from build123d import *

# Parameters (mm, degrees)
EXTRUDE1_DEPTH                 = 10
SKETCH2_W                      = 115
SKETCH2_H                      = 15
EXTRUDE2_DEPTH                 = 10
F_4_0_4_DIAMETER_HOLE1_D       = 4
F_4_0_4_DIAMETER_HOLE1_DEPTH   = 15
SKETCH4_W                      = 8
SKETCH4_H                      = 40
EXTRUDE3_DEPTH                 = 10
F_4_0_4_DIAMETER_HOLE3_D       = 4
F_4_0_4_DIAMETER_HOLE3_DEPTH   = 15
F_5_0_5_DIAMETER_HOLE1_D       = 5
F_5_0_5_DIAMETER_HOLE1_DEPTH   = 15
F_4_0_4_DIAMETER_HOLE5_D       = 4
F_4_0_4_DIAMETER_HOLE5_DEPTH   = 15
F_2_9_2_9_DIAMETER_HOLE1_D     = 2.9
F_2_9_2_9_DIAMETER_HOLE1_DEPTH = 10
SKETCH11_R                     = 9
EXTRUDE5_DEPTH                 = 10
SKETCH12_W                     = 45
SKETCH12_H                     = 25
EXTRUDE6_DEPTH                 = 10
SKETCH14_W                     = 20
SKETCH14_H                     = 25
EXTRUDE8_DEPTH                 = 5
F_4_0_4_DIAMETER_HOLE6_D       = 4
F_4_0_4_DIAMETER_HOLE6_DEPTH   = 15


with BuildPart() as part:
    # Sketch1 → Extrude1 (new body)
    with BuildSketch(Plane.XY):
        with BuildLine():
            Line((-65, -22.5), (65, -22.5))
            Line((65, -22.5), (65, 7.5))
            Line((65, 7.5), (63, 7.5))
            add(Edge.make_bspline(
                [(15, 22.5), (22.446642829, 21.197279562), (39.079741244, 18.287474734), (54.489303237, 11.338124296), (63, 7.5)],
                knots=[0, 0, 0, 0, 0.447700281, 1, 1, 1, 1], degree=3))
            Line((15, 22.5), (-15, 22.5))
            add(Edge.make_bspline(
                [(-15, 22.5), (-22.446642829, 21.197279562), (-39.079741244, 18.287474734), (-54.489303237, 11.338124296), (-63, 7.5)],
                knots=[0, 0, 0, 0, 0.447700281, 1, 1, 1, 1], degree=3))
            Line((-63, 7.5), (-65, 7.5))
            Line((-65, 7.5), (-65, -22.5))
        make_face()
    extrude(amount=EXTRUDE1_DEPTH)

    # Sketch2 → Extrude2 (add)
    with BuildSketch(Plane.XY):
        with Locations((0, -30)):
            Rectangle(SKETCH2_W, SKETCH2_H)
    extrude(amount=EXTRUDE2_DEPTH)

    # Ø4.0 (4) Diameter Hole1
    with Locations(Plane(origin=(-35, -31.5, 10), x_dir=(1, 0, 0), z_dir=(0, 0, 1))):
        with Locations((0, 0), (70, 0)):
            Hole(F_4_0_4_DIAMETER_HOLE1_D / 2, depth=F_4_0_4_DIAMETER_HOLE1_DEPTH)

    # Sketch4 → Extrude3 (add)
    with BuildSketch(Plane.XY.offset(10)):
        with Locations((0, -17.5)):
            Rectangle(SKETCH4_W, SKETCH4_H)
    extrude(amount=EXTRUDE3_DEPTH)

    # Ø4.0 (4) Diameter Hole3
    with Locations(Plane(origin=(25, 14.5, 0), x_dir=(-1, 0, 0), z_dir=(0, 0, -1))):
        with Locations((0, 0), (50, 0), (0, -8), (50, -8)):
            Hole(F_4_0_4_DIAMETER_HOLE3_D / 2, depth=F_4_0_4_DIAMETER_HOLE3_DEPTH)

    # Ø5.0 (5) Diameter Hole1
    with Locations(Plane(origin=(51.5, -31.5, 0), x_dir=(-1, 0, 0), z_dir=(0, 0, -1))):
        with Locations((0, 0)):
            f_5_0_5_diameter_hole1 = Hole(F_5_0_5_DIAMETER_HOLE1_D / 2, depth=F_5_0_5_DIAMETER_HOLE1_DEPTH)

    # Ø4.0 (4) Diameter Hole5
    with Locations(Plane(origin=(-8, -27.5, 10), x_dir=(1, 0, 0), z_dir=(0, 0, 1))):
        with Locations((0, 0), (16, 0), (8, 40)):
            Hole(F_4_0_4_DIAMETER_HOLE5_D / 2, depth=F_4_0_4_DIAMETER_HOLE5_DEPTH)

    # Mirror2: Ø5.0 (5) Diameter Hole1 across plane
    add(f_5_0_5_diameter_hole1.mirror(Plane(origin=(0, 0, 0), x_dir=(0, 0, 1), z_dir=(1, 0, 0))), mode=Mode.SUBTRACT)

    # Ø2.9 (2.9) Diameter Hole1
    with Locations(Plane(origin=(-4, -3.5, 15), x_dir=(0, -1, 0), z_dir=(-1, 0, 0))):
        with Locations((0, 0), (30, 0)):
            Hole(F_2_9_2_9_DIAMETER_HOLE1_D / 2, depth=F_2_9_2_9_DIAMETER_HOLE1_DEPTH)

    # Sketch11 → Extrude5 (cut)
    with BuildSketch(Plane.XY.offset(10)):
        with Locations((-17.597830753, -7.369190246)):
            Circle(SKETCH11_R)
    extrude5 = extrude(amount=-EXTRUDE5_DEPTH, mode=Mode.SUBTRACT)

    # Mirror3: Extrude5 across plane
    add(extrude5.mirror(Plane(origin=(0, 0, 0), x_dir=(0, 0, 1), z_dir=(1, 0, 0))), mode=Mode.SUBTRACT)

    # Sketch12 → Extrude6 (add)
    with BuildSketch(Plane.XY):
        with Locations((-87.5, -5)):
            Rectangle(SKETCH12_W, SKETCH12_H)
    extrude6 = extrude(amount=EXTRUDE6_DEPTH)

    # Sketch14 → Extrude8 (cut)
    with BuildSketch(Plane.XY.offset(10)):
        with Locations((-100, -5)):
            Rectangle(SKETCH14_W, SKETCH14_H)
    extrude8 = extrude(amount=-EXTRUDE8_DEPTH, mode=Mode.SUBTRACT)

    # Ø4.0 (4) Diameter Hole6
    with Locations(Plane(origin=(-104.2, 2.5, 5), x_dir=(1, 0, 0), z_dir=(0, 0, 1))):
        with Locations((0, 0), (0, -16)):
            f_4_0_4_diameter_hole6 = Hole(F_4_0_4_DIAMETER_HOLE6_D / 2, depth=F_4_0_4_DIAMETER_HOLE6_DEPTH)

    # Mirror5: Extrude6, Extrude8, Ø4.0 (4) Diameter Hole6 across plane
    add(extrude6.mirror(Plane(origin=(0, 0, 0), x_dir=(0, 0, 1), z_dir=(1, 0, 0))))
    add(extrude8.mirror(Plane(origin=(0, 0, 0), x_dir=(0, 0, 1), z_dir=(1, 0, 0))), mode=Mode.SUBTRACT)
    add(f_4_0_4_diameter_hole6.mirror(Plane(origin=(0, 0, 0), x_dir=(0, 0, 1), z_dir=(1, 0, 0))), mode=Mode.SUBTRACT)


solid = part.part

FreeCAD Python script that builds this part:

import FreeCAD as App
import Part
import Sketcher

V = App.Vector
Q = App.Units.Quantity


def add_polygon(sketch, points):
    """Adds a closed chain of lines whose ends are joined by coincident constraints."""
    first, n = sketch.GeometryCount, len(points)
    for a, b in zip(points, points[1:] + points[:1]):
        sketch.addGeometry(Part.LineSegment(App.Vector(*a, 0), App.Vector(*b, 0)), False)
    for i in range(n):
        sketch.addConstraint(Sketcher.Constraint("Coincident", first + i, 2, first + (i + 1) % n, 1))

doc = App.newDocument("Part")
body = doc.addObject("PartDesign::Body", "Body")

# Sketch on XY plane
sketch1 = body.newObject("Sketcher::SketchObject", "Sketch")
sketch1.AttachmentSupport = (doc.getObject("XY_Plane"), [""])
sketch1.MapMode = "FlatFace"
sketch1.addGeometry([
    Part.LineSegment(V(-65, -22.5, 0), V(65, -22.5, 0)),  # 0
    Part.LineSegment(V(65, -22.5, 0), V(65, 7.5, 0)),  # 1
    Part.LineSegment(V(65, 7.5, 0), V(63, 7.5, 0)),  # 2
    Part.BSplineCurve([V(15, 22.5, 0), V(22.446643, 21.19728, 0), V(39.079741, 18.287475, 0), V(54.489303, 11.338124, 0), V(63, 7.5, 0)], [4, 1, 4], [0, 0.447700281, 1], False, 3, [1, 1, 1, 1, 1], False),  # 3
    Part.LineSegment(V(15, 22.5, 0), V(-15, 22.5, 0)),  # 4
    Part.BSplineCurve([V(-15, 22.5, 0), V(-22.446643, 21.19728, 0), V(-39.079741, 18.287475, 0), V(-54.489303, 11.338124, 0), V(-63, 7.5, 0)], [4, 1, 4], [0, 0.447700281, 1], False, 3, [1, 1, 1, 1, 1], False),  # 5
    Part.LineSegment(V(-63, 7.5, 0), V(-65, 7.5, 0)),  # 6
    Part.LineSegment(V(-65, 7.5, 0), V(-65, -22.5, 0)),  # 7
], False)
sketch1.addConstraint([
    Sketcher.Constraint("Block", 3),
    Sketcher.Constraint("Block", 5),
    Sketcher.Constraint("Coincident", 0, 2, 1, 1),
    Sketcher.Constraint("Coincident", 1, 2, 2, 1),
    Sketcher.Constraint("Coincident", 2, 2, 3, 2),
    Sketcher.Constraint("Coincident", 3, 1, 4, 1),
    Sketcher.Constraint("Coincident", 4, 2, 5, 1),
    Sketcher.Constraint("Coincident", 5, 2, 6, 1),
    Sketcher.Constraint("Coincident", 6, 2, 7, 1),
    Sketcher.Constraint("Coincident", 7, 2, 0, 1),
    Sketcher.Constraint("Horizontal", 0),
    Sketcher.Constraint("Vertical", 1),
    Sketcher.Constraint("Horizontal", 2),
    Sketcher.Constraint("Horizontal", 6),
    Sketcher.Constraint("Vertical", 7),
    Sketcher.Constraint("Equal", 2, 6),
    Sketcher.Constraint("Equal", 4, 1),
    Sketcher.Constraint("DistanceX", 0, 1, 0, 2, Q("130 mm")),
])
pad1 = body.newObject("PartDesign::Pad", "Pad")
pad1.Profile = sketch1
pad1.Length = 10

# Sketch on XY plane
sketch2 = body.newObject("Sketcher::SketchObject", "Sketch001")
sketch2.AttachmentSupport = (doc.getObject("XY_Plane"), [""])
sketch2.MapMode = "FlatFace"
add_polygon(sketch2, [(-57.5, -22.5), (-57.5, -37.5), (57.5, -37.5), (57.5, -22.5)])  # lines 0-3
sketch2.addConstraint([
    Sketcher.Constraint("Vertical", 0),
    Sketcher.Constraint("Horizontal", 1),
    Sketcher.Constraint("Vertical", 2),
    Sketcher.Constraint("Horizontal", 3),
    Sketcher.Constraint("DistanceX", 1, 1, 1, 2, Q("115 mm")),
    Sketcher.Constraint("DistanceY", 0, 2, 0, 1, Q("15 mm")),
    Sketcher.Constraint("DistanceX", 0, 2, -1, 1, Q("57.5 mm")),
    Sketcher.Constraint("DistanceY", 0, 2, -1, 1, Q("37.5 mm")),
])
pad2 = body.newObject("PartDesign::Pad", "Pad001")
pad2.Profile = sketch2
pad2.Length = 10

# Sketch on XY plane
sketch3 = body.newObject("Sketcher::SketchObject", "Sketch002")
sketch3.AttachmentSupport = (doc.getObject("XY_Plane"), [""])
sketch3.MapMode = "FlatFace"
sketch3.AttachmentOffset = App.Placement(V(0, 0, 10), App.Rotation())
sketch3.addGeometry([
    Part.Circle(V(-35, -31.5, 0), V(0, 0, 1), 2),
    Part.Circle(V(35, -31.5, 0), V(0, 0, 1), 2),
], False)
sketch3.addConstraint([
    Sketcher.Constraint("Equal", 0, 1),
    Sketcher.Constraint("Symmetric", 0, 3, 1, 3, -2),
    Sketcher.Constraint("Diameter", 0, Q("4 mm")),
    Sketcher.Constraint("DistanceX", 0, 3, -1, 1, Q("35 mm")),
    Sketcher.Constraint("DistanceY", 0, 3, -1, 1, Q("31.5 mm")),
])
doc.recompute()
hole = body.newObject("PartDesign::Hole", "Hole")
hole.Profile = sketch3
hole.ThreadType = "None"
hole.Diameter = 4
hole.DepthType = "Dimension"
hole.Depth = 15
hole.DrillPoint = "Flat"

# Sketch on XY plane
sketch4 = body.newObject("Sketcher::SketchObject", "Sketch003")
sketch4.AttachmentSupport = (doc.getObject("XY_Plane"), [""])
sketch4.MapMode = "FlatFace"
sketch4.AttachmentOffset = App.Placement(V(0, 0, 10), App.Rotation())
add_polygon(sketch4, [(-4, 2.5), (-4, -37.5), (4, -37.5), (4, 2.5)])  # lines 0-3
sketch4.addConstraint([
    Sketcher.Constraint("Vertical", 0),
    Sketcher.Constraint("Horizontal", 1),
    Sketcher.Constraint("Vertical", 2),
    Sketcher.Constraint("Horizontal", 3),
    Sketcher.Constraint("DistanceX", 1, 1, 1, 2, Q("8 mm")),
    Sketcher.Constraint("DistanceY", 0, 2, 0, 1, Q("40 mm")),
    Sketcher.Constraint("DistanceX", 0, 2, -1, 1, Q("4 mm")),
    Sketcher.Constraint("DistanceY", 0, 2, -1, 1, Q("37.5 mm")),
])
pad3 = body.newObject("PartDesign::Pad", "Pad002")
pad3.Profile = sketch4
pad3.Length = 10

# Sketch on XY plane
sketch5 = body.newObject("Sketcher::SketchObject", "Sketch004")
sketch5.AttachmentSupport = (doc.getObject("XY_Plane"), [""])
sketch5.MapMode = "FlatFace"
sketch5.addGeometry([
    Part.Circle(V(25, 14.5, 0), V(0, 0, 1), 2),
    Part.Circle(V(-25, 14.5, 0), V(0, 0, 1), 2),
    Part.Circle(V(25, 6.5, 0), V(0, 0, 1), 2),
    Part.Circle(V(-25, 6.5, 0), V(0, 0, 1), 2),
], False)
sketch5.addConstraint([
    Sketcher.Constraint("Equal", 0, 1),
    Sketcher.Constraint("Equal", 1, 2),
    Sketcher.Constraint("Equal", 2, 3),
    Sketcher.Constraint("Symmetric", 0, 3, 1, 3, -2),
    Sketcher.Constraint("Symmetric", 2, 3, 3, 3, -2),
    Sketcher.Constraint("Vertical", 0, 3, 2, 3),
    Sketcher.Constraint("Diameter", 0, Q("4 mm")),
    Sketcher.Constraint("DistanceX", -1, 1, 0, 3, Q("25 mm")),
    Sketcher.Constraint("DistanceY", 2, 3, 0, 3, Q("8 mm")),
    Sketcher.Constraint("DistanceY", -1, 1, 0, 3, Q("14.5 mm")),
])
doc.recompute()
hole2 = body.newObject("PartDesign::Hole", "Hole001")
hole2.Profile = sketch5
hole2.ThreadType = "None"
hole2.Diameter = 4
hole2.DepthType = "Dimension"
hole2.Depth = 15
hole2.DrillPoint = "Flat"
hole2.Reversed = True

# Sketch on XY plane
sketch6 = body.newObject("Sketcher::SketchObject", "Sketch005")
sketch6.AttachmentSupport = (doc.getObject("XY_Plane"), [""])
sketch6.MapMode = "FlatFace"
sketch6.addGeometry(Part.Circle(V(51.5, -31.5, 0), V(0, 0, 1), 2.5), False)
sketch6.addConstraint([
    Sketcher.Constraint("Diameter", 0, Q("5 mm")),
    Sketcher.Constraint("DistanceX", -1, 1, 0, 3, Q("51.5 mm")),
    Sketcher.Constraint("DistanceY", 0, 3, -1, 1, Q("31.5 mm")),
])
doc.recompute()
hole3 = body.newObject("PartDesign::Hole", "Hole002")
hole3.Profile = sketch6
hole3.ThreadType = "None"
hole3.Diameter = 5
hole3.DepthType = "Dimension"
hole3.Depth = 15
hole3.DrillPoint = "Flat"
hole3.Reversed = True

# Sketch on XY plane
sketch7 = body.newObject("Sketcher::SketchObject", "Sketch006")
sketch7.AttachmentSupport = (doc.getObject("XY_Plane"), [""])
sketch7.MapMode = "FlatFace"
sketch7.AttachmentOffset = App.Placement(V(0, 0, 10), App.Rotation())
sketch7.addGeometry([
    Part.Circle(V(-8, -27.5, 0), V(0, 0, 1), 2),
    Part.Circle(V(8, -27.5, 0), V(0, 0, 1), 2),
    Part.Circle(V(0, 12.5, 0), V(0, 0, 1), 2),
], False)
sketch7.addConstraint([
    Sketcher.Constraint("Equal", 0, 1),
    Sketcher.Constraint("Equal", 1, 2),
    Sketcher.Constraint("Symmetric", 0, 3, 1, 3, -2),
    Sketcher.Constraint("PointOnObject", 2, 3, -2),
    Sketcher.Constraint("Diameter", 0, Q("4 mm")),
    Sketcher.Constraint("DistanceX", 0, 3, -1, 1, Q("8 mm")),
    Sketcher.Constraint("DistanceY", 0, 3, 2, 3, Q("40 mm")),
    Sketcher.Constraint("DistanceY", 0, 3, -1, 1, Q("27.5 mm")),
])
doc.recompute()
hole4 = body.newObject("PartDesign::Hole", "Hole003")
hole4.Profile = sketch7
hole4.ThreadType = "None"
hole4.Diameter = 4
hole4.DepthType = "Dimension"
hole4.Depth = 15
hole4.DrillPoint = "Flat"
doc.recompute()

mirrored = body.newObject("PartDesign::Mirrored", "Mirrored")
mirrored.Originals = [hole3]
mirrored.MirrorPlane = (doc.getObject("YZ_Plane"), [""])
body.Tip = mirrored

# Sketch on YZ plane
sketch8 = body.newObject("Sketcher::SketchObject", "Sketch007")
sketch8.AttachmentSupport = (doc.getObject("YZ_Plane"), [""])
sketch8.MapMode = "FlatFace"
sketch8.AttachmentOffset = App.Placement(V(0, 0, -4), App.Rotation())
sketch8.addGeometry([
    Part.Circle(V(-3.5, 15, 0), V(0, 0, 1), 1.45),
    Part.Circle(V(-33.5, 15, 0), V(0, 0, 1), 1.45),
], False)
sketch8.addConstraint([
    Sketcher.Constraint("Equal", 0, 1),
    Sketcher.Constraint("Horizontal", 0, 3, 1, 3),
    Sketcher.Constraint("Diameter", 0, Q("2.9 mm")),
    Sketcher.Constraint("DistanceY", -1, 1, 0, 3, Q("15 mm")),
    Sketcher.Constraint("DistanceX", 1, 3, 0, 3, Q("30 mm")),
    Sketcher.Constraint("DistanceX", 0, 3, -1, 1, Q("3.5 mm")),
])
doc.recompute()
hole5 = body.newObject("PartDesign::Hole", "Hole004")
hole5.Profile = sketch8
hole5.ThreadType = "None"
hole5.Diameter = 2.9
hole5.DepthType = "Dimension"
hole5.Depth = 10
hole5.DrillPoint = "Flat"
hole5.Reversed = True

# Sketch on XY plane
sketch9 = body.newObject("Sketcher::SketchObject", "Sketch008")
sketch9.AttachmentSupport = (doc.getObject("XY_Plane"), [""])
sketch9.MapMode = "FlatFace"
sketch9.AttachmentOffset = App.Placement(V(0, 0, 10), App.Rotation())
sketch9.addGeometry(Part.Circle(V(-17.597831, -7.36919, 0), V(0, 0, 1), 9), False)
sketch9.addConstraint([
    Sketcher.Constraint("Diameter", 0, Q("18 mm")),
    Sketcher.Constraint("DistanceX", 0, 3, -1, 1, Q("17.597831 mm")),
    Sketcher.Constraint("DistanceY", 0, 3, -1, 1, Q("7.36919 mm")),
])
pocket1 = body.newObject("PartDesign::Pocket", "Pocket")
pocket1.Profile = sketch9
pocket1.Length = 10
doc.recompute()

mirrored2 = body.newObject("PartDesign::Mirrored", "Mirrored001")
mirrored2.Originals = [pocket1]
mirrored2.MirrorPlane = (doc.getObject("YZ_Plane"), [""])
body.Tip = mirrored2

# Sketch on XY plane
sketch10 = body.newObject("Sketcher::SketchObject", "Sketch009")
sketch10.AttachmentSupport = (doc.getObject("XY_Plane"), [""])
sketch10.MapMode = "FlatFace"
add_polygon(sketch10, [(-110, 7.5), (-110, -17.5), (-65, -17.5), (-65, 7.5)])  # lines 0-3
sketch10.addConstraint([
    Sketcher.Constraint("Vertical", 0),
    Sketcher.Constraint("Horizontal", 1),
    Sketcher.Constraint("Vertical", 2),
    Sketcher.Constraint("Horizontal", 3),
    Sketcher.Constraint("DistanceX", 1, 1, 1, 2, Q("45 mm")),
    Sketcher.Constraint("DistanceY", 0, 2, 0, 1, Q("25 mm")),
    Sketcher.Constraint("DistanceX", 0, 2, -1, 1, Q("110 mm")),
    Sketcher.Constraint("DistanceY", 0, 2, -1, 1, Q("17.5 mm")),
])
pad4 = body.newObject("PartDesign::Pad", "Pad003")
pad4.Profile = sketch10
pad4.Length = 10

# Sketch on XY plane
sketch11 = body.newObject("Sketcher::SketchObject", "Sketch010")
sketch11.AttachmentSupport = (doc.getObject("XY_Plane"), [""])
sketch11.MapMode = "FlatFace"
sketch11.AttachmentOffset = App.Placement(V(0, 0, 10), App.Rotation())
add_polygon(sketch11, [(-110, 7.5), (-110, -17.5), (-90, -17.5), (-90, 7.5)])  # lines 0-3
sketch11.addConstraint([
    Sketcher.Constraint("Vertical", 0),
    Sketcher.Constraint("Horizontal", 1),
    Sketcher.Constraint("Vertical", 2),
    Sketcher.Constraint("Horizontal", 3),
    Sketcher.Constraint("DistanceX", 1, 1, 1, 2, Q("20 mm")),
    Sketcher.Constraint("DistanceY", 0, 2, 0, 1, Q("25 mm")),
    Sketcher.Constraint("DistanceX", 0, 2, -1, 1, Q("110 mm")),
    Sketcher.Constraint("DistanceY", 0, 2, -1, 1, Q("17.5 mm")),
])
pocket2 = body.newObject("PartDesign::Pocket", "Pocket001")
pocket2.Profile = sketch11
pocket2.Length = 5

# Sketch on XY plane
sketch12 = body.newObject("Sketcher::SketchObject", "Sketch011")
sketch12.AttachmentSupport = (doc.getObject("XY_Plane"), [""])
sketch12.MapMode = "FlatFace"
sketch12.AttachmentOffset = App.Placement(V(0, 0, 5), App.Rotation())
sketch12.addGeometry([
    Part.Circle(V(-104.2, 2.5, 0), V(0, 0, 1), 2),
    Part.Circle(V(-104.2, -13.5, 0), V(0, 0, 1), 2),
], False)
sketch12.addConstraint([
    Sketcher.Constraint("Equal", 0, 1),
    Sketcher.Constraint("Vertical", 0, 3, 1, 3),
    Sketcher.Constraint("Diameter", 0, Q("4 mm")),
    Sketcher.Constraint("DistanceY", 1, 3, 0, 3, Q("16 mm")),
    Sketcher.Constraint("DistanceX", 0, 3, -1, 1, Q("104.2 mm")),
    Sketcher.Constraint("DistanceY", -1, 1, 0, 3, Q("2.5 mm")),
])
doc.recompute()
hole6 = body.newObject("PartDesign::Hole", "Hole005")
hole6.Profile = sketch12
hole6.ThreadType = "None"
hole6.Diameter = 4
hole6.DepthType = "Dimension"
hole6.Depth = 15
hole6.DrillPoint = "Flat"
doc.recompute()

mirrored3 = body.newObject("PartDesign::Mirrored", "Mirrored002")
mirrored3.Originals = [pad4, pocket2, hole6]
mirrored3.MirrorPlane = (doc.getObject("YZ_Plane"), [""])
body.Tip = mirrored3

doc.recompute()
